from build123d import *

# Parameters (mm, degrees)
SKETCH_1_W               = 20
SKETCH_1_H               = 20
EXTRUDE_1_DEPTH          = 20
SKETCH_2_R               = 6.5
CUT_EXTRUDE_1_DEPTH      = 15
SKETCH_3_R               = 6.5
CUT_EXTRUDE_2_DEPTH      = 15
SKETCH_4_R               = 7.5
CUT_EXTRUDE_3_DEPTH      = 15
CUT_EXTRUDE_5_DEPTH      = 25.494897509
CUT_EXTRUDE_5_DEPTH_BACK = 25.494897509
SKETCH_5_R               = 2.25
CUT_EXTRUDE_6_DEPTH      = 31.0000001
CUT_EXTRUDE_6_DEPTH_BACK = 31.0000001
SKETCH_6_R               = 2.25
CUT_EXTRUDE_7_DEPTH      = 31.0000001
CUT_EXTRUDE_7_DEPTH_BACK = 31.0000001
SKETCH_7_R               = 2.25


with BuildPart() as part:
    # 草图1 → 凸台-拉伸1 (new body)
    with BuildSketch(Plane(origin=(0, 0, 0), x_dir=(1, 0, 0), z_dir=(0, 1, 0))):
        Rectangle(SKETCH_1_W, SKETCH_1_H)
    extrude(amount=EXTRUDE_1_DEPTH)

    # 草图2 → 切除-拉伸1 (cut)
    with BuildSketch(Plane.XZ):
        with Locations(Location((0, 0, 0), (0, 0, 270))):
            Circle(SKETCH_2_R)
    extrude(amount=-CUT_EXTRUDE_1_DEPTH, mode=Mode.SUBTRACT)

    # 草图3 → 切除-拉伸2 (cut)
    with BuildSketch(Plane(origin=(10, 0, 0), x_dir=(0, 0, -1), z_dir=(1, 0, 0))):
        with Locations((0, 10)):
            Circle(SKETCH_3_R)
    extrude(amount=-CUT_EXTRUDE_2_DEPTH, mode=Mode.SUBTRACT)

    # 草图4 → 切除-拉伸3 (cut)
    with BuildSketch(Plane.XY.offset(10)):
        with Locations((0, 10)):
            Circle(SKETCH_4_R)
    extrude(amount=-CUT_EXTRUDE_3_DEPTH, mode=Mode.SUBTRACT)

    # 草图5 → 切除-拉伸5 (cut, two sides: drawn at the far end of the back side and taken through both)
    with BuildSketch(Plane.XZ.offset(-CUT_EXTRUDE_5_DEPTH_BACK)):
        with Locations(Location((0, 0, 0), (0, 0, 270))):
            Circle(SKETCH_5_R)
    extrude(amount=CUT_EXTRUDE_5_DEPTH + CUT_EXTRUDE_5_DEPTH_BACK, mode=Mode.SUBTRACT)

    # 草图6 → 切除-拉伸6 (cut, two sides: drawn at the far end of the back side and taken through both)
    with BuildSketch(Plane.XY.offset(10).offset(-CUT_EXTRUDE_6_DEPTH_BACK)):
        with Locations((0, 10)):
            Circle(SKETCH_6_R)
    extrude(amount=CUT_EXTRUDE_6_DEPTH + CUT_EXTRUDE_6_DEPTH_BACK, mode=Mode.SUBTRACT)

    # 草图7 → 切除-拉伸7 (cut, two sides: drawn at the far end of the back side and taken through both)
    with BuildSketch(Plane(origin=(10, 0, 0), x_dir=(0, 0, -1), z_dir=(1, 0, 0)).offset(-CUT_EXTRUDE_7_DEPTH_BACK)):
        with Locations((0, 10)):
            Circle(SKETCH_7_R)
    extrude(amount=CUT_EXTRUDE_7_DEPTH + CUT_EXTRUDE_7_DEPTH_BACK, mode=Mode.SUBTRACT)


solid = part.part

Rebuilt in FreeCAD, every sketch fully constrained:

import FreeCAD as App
import Part
import Sketcher
from FreeCAD import Vector


def add_polygon(sketch, points):
    """Adds a closed chain of lines whose ends are joined by coincident constraints."""
    first, n = sketch.GeometryCount, len(points)
    for a, b in zip(points, points[1:] + points[:1]):
        sketch.addGeometry(Part.LineSegment(App.Vector(*a, 0), App.Vector(*b, 0)), False)
    for i in range(n):
        sketch.addConstraint(Sketcher.Constraint("Coincident", first + i, 2, first + (i + 1) % n, 1))

doc = App.newDocument("Part")
body = doc.addObject("PartDesign::Body", "Body")

# Sketch on XZ plane
sketch1 = body.newObject("Sketcher::SketchObject", "Sketch")
sketch1.AttachmentSupport = (doc.getObject("XZ_Plane"), [""])
sketch1.MapMode = "FlatFace"
add_polygon(sketch1, [(-10, -10), (-10, 10), (10, 10), (10, -10)])  # lines 0-3
sketch1.addConstraint([
    Sketcher.Constraint("Vertical", 0),
    Sketcher.Constraint("Horizontal", 1),
    Sketcher.Constraint("Vertical", 2),
    Sketcher.Constraint("Horizontal", 3),
    Sketcher.Constraint("Symmetric", 0, 2, 2, 2, -1, 1),
    Sketcher.Constraint("Equal", 3, 0),
    Sketcher.Constraint("DistanceX", 1, 1, 1, 2, 20.0),
])
pad1 = body.newObject("PartDesign::Pad", "Pad")
pad1.Profile = sketch1
pad1.Length = 20
pad1.Reversed = True

# Sketch on XZ plane
sketch2 = body.newObject("Sketcher::SketchObject", "Sketch001")
sketch2.AttachmentSupport = (doc.getObject("XZ_Plane"), [""])
sketch2.MapMode = "FlatFace"
sketch2.addGeometry(Part.Circle(Vector(0, 0, 0), Vector(0, 0, 1), 6), False)
sketch2.addConstraint([
    Sketcher.Constraint("Coincident", 0, 3, -1, 1),
    Sketcher.Constraint("Diameter", 0, 13.0),
])
pocket1 = body.newObject("PartDesign::Pocket", "Pocket")
pocket1.Profile = sketch2
pocket1.Length = 15

# Sketch on YZ plane
sketch3 = body.newObject("Sketcher::SketchObject", "Sketch002")
sketch3.AttachmentSupport = (doc.getObject("YZ_Plane"), [""])
sketch3.MapMode = "FlatFace"
sketch3.AttachmentOffset = App.Placement(Vector(0, 0, 10), App.Rotation())
sketch3.addGeometry(Part.Circle(Vector(10, 0, 0), Vector(0, 0, 1), 6), False)
sketch3.addConstraint([
    Sketcher.Constraint("PointOnObject", 0, 3, -1),
    Sketcher.Constraint("Diameter", 0, 13.0),
    Sketcher.Constraint("DistanceX", -1, 1, 0, 3, 10.0),
])
pocket2 = body.newObject("PartDesign::Pocket", "Pocket001")
pocket2.Profile = sketch3
pocket2.Length = 15

# Sketch on XY plane
sketch4 = body.newObject("Sketcher::SketchObject", "Sketch003")
sketch4.AttachmentSupport = (doc.getObject("XY_Plane"), [""])
sketch4.MapMode = "FlatFace"
sketch4.AttachmentOffset = App.Placement(Vector(0, 0, 10), App.Rotation())
sketch4.addGeometry(Part.Circle(Vector(0, 10, 0), Vector(0, 0, 1), 8), False)
sketch4.addConstraint([
    Sketcher.Constraint("PointOnObject", 0, 3, -2),
    Sketcher.Constraint("Diameter", 0, 15.0),
    Sketcher.Constraint("DistanceY", -1, 1, 0, 3, 10.0),
])
pocket3 = body.newObject("PartDesign::Pocket", "Pocket002")
pocket3.Profile = sketch4
pocket3.Length = 15

# Sketch on XZ plane
sketch5 = body.newObject("Sketcher::SketchObject", "Sketch004")
sketch5.AttachmentSupport = (doc.getObject("XZ_Plane"), [""])
sketch5.MapMode = "FlatFace"
sketch5.addGeometry(Part.Circle(Vector(0, 0, 0), Vector(0, 0, 1), 2.2), False)
sketch5.addConstraint([
    Sketcher.Constraint("Coincident", 0, 3, -1, 1),
    Sketcher.Constraint("Diameter", 0, 4.5),
])
pocket4 = body.newObject("PartDesign::Pocket", "Pocket003")
pocket4.Profile = sketch5
pocket4.Type = "ThroughAll"
pocket4.Midplane = True

# Sketch on XY plane
sketch6 = body.newObject("Sketcher::SketchObject", "Sketch005")
sketch6.AttachmentSupport = (doc.getObject("XY_Plane"), [""])
sketch6.MapMode = "FlatFace"
sketch6.AttachmentOffset = App.Placement(Vector(0, 0, 10), App.Rotation())
sketch6.addGeometry(Part.Circle(Vector(0, 10, 0), Vector(0, 0, 1), 2.2), False)
sketch6.addConstraint([
    Sketcher.Constraint("PointOnObject", 0, 3, -2),
    Sketcher.Constraint("Diameter", 0, 4.5),
    Sketcher.Constraint("DistanceY", -1, 1, 0, 3, 10.0),
])
pocket5 = body.newObject("PartDesign::Pocket", "Pocket004")
pocket5.Profile = sketch6
pocket5.Type = "ThroughAll"
pocket5.Midplane = True

# Sketch on YZ plane
sketch7 = body.newObject("Sketcher::SketchObject", "Sketch006")
sketch7.AttachmentSupport = (doc.getObject("YZ_Plane"), [""])
sketch7.MapMode = "FlatFace"
sketch7.AttachmentOffset = App.Placement(Vector(0, 0, 10), App.Rotation())
sketch7.addGeometry(Part.Circle(Vector(10, 0, 0), Vector(0, 0, 1), 2.2), False)
sketch7.addConstraint([
    Sketcher.Constraint("PointOnObject", 0, 3, -1),
    Sketcher.Constraint("Diameter", 0, 4.5),
    Sketcher.Constraint("DistanceX", -1, 1, 0, 3, 10.0),
])
pocket6 = body.newObject("PartDesign::Pocket", "Pocket005")
pocket6.Profile = sketch7
pocket6.Type = "ThroughAll"
pocket6.Midplane = True

doc.recompute()
